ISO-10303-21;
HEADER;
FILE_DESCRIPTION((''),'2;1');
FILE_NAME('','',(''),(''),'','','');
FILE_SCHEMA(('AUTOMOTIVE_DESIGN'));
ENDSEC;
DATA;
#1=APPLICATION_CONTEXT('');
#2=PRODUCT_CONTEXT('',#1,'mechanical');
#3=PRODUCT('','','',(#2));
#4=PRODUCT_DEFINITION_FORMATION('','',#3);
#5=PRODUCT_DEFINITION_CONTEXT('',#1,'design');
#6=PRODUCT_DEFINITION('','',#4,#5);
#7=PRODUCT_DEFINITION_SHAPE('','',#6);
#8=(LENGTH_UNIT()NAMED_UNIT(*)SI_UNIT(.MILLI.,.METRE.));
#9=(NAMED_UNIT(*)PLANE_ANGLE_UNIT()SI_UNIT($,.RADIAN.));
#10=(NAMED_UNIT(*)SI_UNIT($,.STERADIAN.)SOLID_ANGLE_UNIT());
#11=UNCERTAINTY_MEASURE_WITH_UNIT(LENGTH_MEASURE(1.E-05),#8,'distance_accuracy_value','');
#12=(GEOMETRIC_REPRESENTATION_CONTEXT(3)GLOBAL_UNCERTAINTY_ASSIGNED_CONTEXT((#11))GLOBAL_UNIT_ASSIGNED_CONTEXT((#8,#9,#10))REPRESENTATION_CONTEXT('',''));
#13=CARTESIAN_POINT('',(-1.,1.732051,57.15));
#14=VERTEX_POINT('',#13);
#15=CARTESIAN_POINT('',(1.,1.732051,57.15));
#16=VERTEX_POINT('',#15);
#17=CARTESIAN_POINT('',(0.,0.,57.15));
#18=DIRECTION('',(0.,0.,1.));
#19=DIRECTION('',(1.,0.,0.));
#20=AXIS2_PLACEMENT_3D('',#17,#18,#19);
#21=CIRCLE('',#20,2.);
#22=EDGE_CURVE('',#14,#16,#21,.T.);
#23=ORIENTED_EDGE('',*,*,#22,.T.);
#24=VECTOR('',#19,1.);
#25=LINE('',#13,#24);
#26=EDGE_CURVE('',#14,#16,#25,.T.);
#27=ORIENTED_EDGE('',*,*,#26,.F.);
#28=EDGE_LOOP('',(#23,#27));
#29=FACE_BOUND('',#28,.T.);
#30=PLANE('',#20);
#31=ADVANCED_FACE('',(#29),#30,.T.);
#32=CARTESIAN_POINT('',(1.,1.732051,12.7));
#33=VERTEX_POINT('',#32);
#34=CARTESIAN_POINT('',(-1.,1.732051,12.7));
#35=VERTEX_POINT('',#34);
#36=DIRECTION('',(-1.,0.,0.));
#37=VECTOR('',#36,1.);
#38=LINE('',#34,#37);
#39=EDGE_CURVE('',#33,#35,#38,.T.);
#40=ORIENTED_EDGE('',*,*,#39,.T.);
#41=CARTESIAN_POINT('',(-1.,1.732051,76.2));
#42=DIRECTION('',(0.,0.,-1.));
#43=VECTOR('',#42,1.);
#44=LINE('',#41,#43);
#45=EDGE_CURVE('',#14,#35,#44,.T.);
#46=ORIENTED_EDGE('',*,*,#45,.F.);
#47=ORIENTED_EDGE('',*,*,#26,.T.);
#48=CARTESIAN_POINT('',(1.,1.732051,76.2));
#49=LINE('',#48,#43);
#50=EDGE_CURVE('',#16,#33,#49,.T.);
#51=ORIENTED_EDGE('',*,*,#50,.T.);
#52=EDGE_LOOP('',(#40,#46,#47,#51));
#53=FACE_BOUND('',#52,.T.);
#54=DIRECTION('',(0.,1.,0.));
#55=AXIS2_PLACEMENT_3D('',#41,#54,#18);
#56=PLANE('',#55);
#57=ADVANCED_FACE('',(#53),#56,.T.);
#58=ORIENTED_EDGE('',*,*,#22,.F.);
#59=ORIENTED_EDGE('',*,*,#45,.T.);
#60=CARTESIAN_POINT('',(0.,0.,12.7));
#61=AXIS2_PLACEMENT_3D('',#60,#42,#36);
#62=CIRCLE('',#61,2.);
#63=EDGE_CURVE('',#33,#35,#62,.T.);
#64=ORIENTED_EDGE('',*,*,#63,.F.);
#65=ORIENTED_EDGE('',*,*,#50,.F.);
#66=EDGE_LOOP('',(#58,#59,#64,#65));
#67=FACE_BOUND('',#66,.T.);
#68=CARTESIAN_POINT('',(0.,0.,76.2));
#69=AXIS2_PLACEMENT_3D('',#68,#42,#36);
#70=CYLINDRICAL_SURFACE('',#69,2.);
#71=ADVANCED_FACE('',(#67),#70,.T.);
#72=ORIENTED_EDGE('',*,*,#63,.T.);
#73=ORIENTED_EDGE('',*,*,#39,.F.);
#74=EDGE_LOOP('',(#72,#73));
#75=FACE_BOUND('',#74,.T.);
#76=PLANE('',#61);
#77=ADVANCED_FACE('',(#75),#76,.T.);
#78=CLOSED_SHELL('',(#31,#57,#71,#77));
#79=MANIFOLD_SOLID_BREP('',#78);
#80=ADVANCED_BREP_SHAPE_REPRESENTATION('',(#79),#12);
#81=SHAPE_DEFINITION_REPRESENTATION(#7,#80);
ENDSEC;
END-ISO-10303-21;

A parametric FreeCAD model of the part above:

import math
import FreeCAD as App
import Part
import Sketcher
from FreeCAD import Vector
Q = App.Units.Quantity


def edges_at(feature, points):
    """Names of the edges that pass closest to the given points."""
    edges = feature.Shape.Edges
    near = lambda p: min(range(len(edges)), key=lambda i: edges[i].distToShape(Part.Vertex(*p))[0])
    return sorted({f"Edge{near(p) + 1}" for p in points})

doc = App.newDocument("Part")
body = doc.addObject("PartDesign::Body", "Body")

sketch1 = body.newObject("Sketcher::SketchObject", "Sketch")
sketch1.AttachmentSupport = (doc.getObject("XY_Plane"), [""])
sketch1.MapMode = "FlatFace"
sketch1.addGeometry(Part.Circle(Vector(0, 0, 0), Vector(0, 0, 1), 2), False)
sketch1.addConstraint(Sketcher.Constraint("Coincident", 0, 3, -1, 1))
sketch1.addConstraint(Sketcher.Constraint("Diameter", 0, 4.0))
pad1 = body.newObject("PartDesign::Pad", "Pad")
pad1.Profile = sketch1
pad1.Length = Q("3 in")

sketch2 = body.newObject("Sketcher::SketchObject", "Sketch001")
sketch2.AttachmentSupport = (doc.getObject("XY_Plane"), [""])
sketch2.MapMode = "FlatFace"
sketch2.addGeometry(Part.LineSegment(Vector(-1, 1.7, 0), Vector(1, 1.7, 0)), False)
sketch2.addGeometry(Part.ArcOfCircle(Part.Circle(Vector(0, 0, 0), Vector(0, 0, 1), 2), math.radians(60), math.radians(120)), False)
sketch2.addConstraint(Sketcher.Constraint("Coincident", 0, 1, 1, 2))
sketch2.addConstraint(Sketcher.Constraint("Coincident", 1, 1, 0, 2))
sketch2.addConstraint(Sketcher.Constraint("Horizontal", 0))
sketch2.addConstraint(Sketcher.Constraint("Coincident", 1, 3, -1, 1))
sketch2.addConstraint(Sketcher.Constraint("Radius", 1, 2.0))
sketch2.addConstraint(Sketcher.Constraint("DistanceX", 0, 1, 0, 2, 2.0))
pocket1 = body.newObject("PartDesign::Pocket", "Pocket")
pocket1.Profile = sketch2
pocket1.Type = "ThroughAll"
pocket1.Midplane = True
doc.recompute()

chamfer = body.newObject("PartDesign::Chamfer", "Chamfer")
chamfer.Base = (pocket1, edges_at(pocket1, [(0, -2, 0), (0, -2, 76.2)]))
chamfer.Size = 0.2

sketch3 = body.newObject("Sketcher::SketchObject", "Sketch002")
sketch3.AttachmentSupport = (doc.getObject("XY_Plane"), [""])
sketch3.MapMode = "FlatFace"
sketch3.addGeometry(Part.Circle(Vector(0, 0, 0), Vector(0, 0, 1), 3.2), False)
sketch3.addConstraint(Sketcher.Constraint("Coincident", 0, 3, -1, 1))
sketch3.addConstraint(Sketcher.Constraint("Diameter", 0, Q("0.25 in")))
pocket2 = body.newObject("PartDesign::Pocket", "Pocket001")
pocket2.Profile = sketch3
pocket2.Length = Q("0.5 in")
pocket2.Reversed = True

sketch4 = body.newObject("Sketcher::SketchObject", "Sketch003")
sketch4.AttachmentSupport = (doc.getObject("XY_Plane"), [""])
sketch4.MapMode = "FlatFace"
sketch4.AttachmentOffset = App.Placement(Vector(0, 0, 2.25 * 25.4), App.Rotation())
sketch4.addGeometry(Part.Circle(Vector(0, 0, 0), Vector(0, 0, 1), 2), False)
sketch4.addConstraint(Sketcher.Constraint("Coincident", 0, 3, -1, 1))
sketch4.addConstraint(Sketcher.Constraint("Diameter", 0, 4.0))
pocket3 = body.newObject("PartDesign::Pocket", "Pocket002")
pocket3.Profile = sketch4
pocket3.Length = Q("0.75 in")
pocket3.Reversed = True

doc.recompute()
